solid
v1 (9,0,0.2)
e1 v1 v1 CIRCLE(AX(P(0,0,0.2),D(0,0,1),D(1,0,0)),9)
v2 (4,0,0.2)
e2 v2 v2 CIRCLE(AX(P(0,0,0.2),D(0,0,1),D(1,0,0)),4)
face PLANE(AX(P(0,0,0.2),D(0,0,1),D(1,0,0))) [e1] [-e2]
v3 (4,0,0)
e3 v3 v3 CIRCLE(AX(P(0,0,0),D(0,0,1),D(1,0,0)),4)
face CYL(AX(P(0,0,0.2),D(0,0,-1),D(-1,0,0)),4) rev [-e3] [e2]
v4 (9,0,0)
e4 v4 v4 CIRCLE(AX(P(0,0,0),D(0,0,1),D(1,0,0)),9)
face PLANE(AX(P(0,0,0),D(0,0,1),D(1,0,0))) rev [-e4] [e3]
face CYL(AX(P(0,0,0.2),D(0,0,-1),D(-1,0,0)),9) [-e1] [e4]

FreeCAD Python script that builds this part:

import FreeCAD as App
import Part
import Sketcher

V = App.Vector

doc = App.newDocument("Part")
body = doc.addObject("PartDesign::Body", "Body")

# Sketch on XY plane
sketch1 = doc.addObject("Sketcher::SketchObject", "Sketch")
body.addObject(sketch1)
sketch1.AttachmentSupport = (doc.XY_Plane, [""])
sketch1.MapMode = "FlatFace"
sketch1.addGeometry(Part.Circle(V(0, 0, 0), V(0, 0, 1), 9), False)
sketch1.addGeometry(Part.Circle(V(0, 0, 0), V(0, 0, 1), 4), False)
sketch1.addConstraint(Sketcher.Constraint("Coincident", 0, 3, -1, 1))
sketch1.addConstraint(Sketcher.Constraint("Coincident", 1, 3, -1, 1))
sketch1.addConstraint(Sketcher.Constraint("Diameter", 0, 18.0))
sketch1.addConstraint(Sketcher.Constraint("Diameter", 1, 8.0))
pad1 = doc.addObject("PartDesign::Pad", "Pad")
body.addObject(pad1)
pad1.Profile = sketch1
pad1.Length = 0.2

doc.recompute()
